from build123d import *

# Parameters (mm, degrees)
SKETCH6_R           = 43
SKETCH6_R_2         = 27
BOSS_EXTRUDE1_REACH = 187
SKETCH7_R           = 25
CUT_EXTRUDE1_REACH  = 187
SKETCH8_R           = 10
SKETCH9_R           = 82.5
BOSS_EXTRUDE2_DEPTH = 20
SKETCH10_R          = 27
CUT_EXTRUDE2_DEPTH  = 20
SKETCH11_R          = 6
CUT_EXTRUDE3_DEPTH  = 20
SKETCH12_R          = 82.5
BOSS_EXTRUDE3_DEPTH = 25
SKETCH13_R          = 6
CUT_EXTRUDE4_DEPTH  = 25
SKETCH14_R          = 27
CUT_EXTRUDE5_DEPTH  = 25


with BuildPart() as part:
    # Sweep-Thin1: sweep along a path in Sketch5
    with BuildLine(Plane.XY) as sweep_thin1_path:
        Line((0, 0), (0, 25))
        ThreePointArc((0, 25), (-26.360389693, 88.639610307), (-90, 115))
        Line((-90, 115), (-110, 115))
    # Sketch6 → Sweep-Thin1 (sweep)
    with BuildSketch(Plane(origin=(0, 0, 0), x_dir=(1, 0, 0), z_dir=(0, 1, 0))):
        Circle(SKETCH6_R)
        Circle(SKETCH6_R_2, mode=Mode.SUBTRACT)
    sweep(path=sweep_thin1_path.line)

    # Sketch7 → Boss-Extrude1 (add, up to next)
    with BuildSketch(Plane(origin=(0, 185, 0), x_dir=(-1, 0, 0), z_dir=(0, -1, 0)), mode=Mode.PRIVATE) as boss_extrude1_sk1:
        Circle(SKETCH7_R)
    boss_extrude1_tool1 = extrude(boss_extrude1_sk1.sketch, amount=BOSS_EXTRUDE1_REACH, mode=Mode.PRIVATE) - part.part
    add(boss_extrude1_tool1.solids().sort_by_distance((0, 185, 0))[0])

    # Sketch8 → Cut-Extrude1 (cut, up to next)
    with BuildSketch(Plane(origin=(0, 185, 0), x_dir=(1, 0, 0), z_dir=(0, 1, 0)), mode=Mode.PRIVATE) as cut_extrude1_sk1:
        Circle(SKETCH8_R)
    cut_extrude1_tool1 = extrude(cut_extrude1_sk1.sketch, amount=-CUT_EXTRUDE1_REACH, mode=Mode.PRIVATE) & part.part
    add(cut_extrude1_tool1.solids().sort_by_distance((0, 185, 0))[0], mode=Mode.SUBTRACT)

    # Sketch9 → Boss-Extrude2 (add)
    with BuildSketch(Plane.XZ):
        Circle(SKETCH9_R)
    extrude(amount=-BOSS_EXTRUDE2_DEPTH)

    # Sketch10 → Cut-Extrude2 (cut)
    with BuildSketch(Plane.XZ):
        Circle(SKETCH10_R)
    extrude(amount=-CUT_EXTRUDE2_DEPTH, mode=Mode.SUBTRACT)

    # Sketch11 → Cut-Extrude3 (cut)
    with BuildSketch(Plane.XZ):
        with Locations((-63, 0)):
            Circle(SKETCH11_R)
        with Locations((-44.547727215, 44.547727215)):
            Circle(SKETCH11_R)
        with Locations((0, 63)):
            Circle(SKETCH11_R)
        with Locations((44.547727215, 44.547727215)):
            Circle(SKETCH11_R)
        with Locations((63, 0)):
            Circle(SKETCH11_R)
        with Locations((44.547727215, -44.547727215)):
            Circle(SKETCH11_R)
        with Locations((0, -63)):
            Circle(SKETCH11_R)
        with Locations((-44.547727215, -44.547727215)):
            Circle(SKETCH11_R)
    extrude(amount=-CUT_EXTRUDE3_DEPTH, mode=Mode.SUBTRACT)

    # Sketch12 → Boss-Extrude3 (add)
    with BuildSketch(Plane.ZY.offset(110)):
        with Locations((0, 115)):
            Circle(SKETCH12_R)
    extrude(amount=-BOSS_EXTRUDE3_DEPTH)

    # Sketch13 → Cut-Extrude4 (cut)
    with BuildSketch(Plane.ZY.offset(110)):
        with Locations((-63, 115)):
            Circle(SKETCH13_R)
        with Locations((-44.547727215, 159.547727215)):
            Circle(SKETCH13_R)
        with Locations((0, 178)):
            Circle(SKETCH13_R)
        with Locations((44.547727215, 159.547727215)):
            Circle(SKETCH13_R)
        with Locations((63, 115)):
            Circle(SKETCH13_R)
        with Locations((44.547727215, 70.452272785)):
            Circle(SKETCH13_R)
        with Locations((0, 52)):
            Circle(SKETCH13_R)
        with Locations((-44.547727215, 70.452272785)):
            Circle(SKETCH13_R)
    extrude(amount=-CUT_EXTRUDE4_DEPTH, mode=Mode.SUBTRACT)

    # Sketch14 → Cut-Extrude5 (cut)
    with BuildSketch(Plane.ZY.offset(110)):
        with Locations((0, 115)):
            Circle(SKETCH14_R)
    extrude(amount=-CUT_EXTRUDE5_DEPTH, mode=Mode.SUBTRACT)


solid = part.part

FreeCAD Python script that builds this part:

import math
import FreeCAD as App
import Part
import Sketcher

doc = App.newDocument("Part")
body = doc.addObject("PartDesign::Body", "Body")

# Sketch on XZ plane
sketch1 = doc.addObject("Sketcher::SketchObject", "Sketch")
body.addObject(sketch1)
sketch1.AttachmentSupport = (doc.XZ_Plane, [""])
sketch1.MapMode = "FlatFace"
sketch1.addGeometry(Part.Circle(App.Vector(0, 0, 0), App.Vector(0, 0, 1), 43), False)
sketch1.addGeometry(Part.Circle(App.Vector(0, 0, 0), App.Vector(0, 0, 1), 27), False)
sketch1.addConstraint(Sketcher.Constraint("Coincident", 0, 3, -1, 1))
sketch1.addConstraint(Sketcher.Constraint("Coincident", 1, 3, -1, 1))
sketch1.addConstraint(Sketcher.Constraint("Diameter", 0, 86.0))
sketch1.addConstraint(Sketcher.Constraint("Diameter", 1, 54.0))

# Sketch on XY plane
sketch2 = doc.addObject("Sketcher::SketchObject", "Sketch001")
body.addObject(sketch2)
sketch2.AttachmentSupport = (doc.XY_Plane, [""])
sketch2.MapMode = "FlatFace"
sketch2.addGeometry(Part.LineSegment(App.Vector(0, 0, 0), App.Vector(0, 25, 0)), False)
sketch2.addGeometry(Part.ArcOfCircle(Part.Circle(App.Vector(-90, 25, 0), App.Vector(0, 0, 1), 90), math.radians(0), math.radians(90)), False)
sketch2.addGeometry(Part.LineSegment(App.Vector(-90, 115, 0), App.Vector(-110, 115, 0)), False)
sketch2.addConstraint(Sketcher.Constraint("Tangent", 0, 2, 1, 1))
sketch2.addConstraint(Sketcher.Constraint("Tangent", 1, 2, 2, 1))
sketch2.addConstraint(Sketcher.Constraint("Vertical", 0))
sketch2.addConstraint(Sketcher.Constraint("Horizontal", 2))
sketch2.addConstraint(Sketcher.Constraint("Coincident", 0, 1, -1, 1))
sketch2.addConstraint(Sketcher.Constraint("Radius", 1, 90.0))
sketch2.addConstraint(Sketcher.Constraint("DistanceX", 2, 2, 2, 1, 20.0))
sketch2.addConstraint(Sketcher.Constraint("DistanceY", 0, 1, 0, 2, 25.0))
doc.recompute()

additivepipe = doc.addObject("PartDesign::AdditivePipe", "AdditivePipe")
body.addObject(additivepipe)
additivepipe.Profile = sketch1
additivepipe.Spine = (sketch2, ["Edge1", "Edge2", "Edge3"])

# Sketch on XZ plane
sketch3 = doc.addObject("Sketcher::SketchObject", "Sketch002")
body.addObject(sketch3)
sketch3.AttachmentSupport = (doc.XZ_Plane, [""])
sketch3.MapMode = "FlatFace"
sketch3.AttachmentOffset = App.Placement(App.Vector(0, 0, -185), App.Rotation())
sketch3.addGeometry(Part.Circle(App.Vector(0, 0, 0), App.Vector(0, 0, 1), 25), False)
sketch3.addConstraint(Sketcher.Constraint("Coincident", 0, 3, -1, 1))
sketch3.addConstraint(Sketcher.Constraint("Diameter", 0, 50.0))
pad1 = doc.addObject("PartDesign::Pad", "Pad")
body.addObject(pad1)
pad1.Profile = sketch3
pad1.Type = "UpToFirst"

# Sketch on XZ plane
sketch4 = doc.addObject("Sketcher::SketchObject", "Sketch003")
body.addObject(sketch4)
sketch4.AttachmentSupport = (doc.XZ_Plane, [""])
sketch4.MapMode = "FlatFace"
sketch4.AttachmentOffset = App.Placement(App.Vector(0, 0, -185), App.Rotation())
sketch4.addGeometry(Part.Circle(App.Vector(0, 0, 0), App.Vector(0, 0, 1), 10), False)
sketch4.addConstraint(Sketcher.Constraint("Coincident", 0, 3, -1, 1))
sketch4.addConstraint(Sketcher.Constraint("Diameter", 0, 20.0))
pocket1 = doc.addObject("PartDesign::Pocket", "Pocket")
body.addObject(pocket1)
pocket1.Profile = sketch4
pocket1.Length = 99.262861
pocket1.Reversed = True

# Sketch on XZ plane
sketch5 = doc.addObject("Sketcher::SketchObject", "Sketch004")
body.addObject(sketch5)
sketch5.AttachmentSupport = (doc.XZ_Plane, [""])
sketch5.MapMode = "FlatFace"
sketch5.addGeometry(Part.Circle(App.Vector(0, 0, 0), App.Vector(0, 0, 1), 82), False)
sketch5.addConstraint(Sketcher.Constraint("Coincident", 0, 3, -1, 1))
sketch5.addConstraint(Sketcher.Constraint("Diameter", 0, 165.0))
pad2 = doc.addObject("PartDesign::Pad", "Pad001")
body.addObject(pad2)
pad2.Profile = sketch5
pad2.Length = 20
pad2.Reversed = True

# Sketch on XZ plane
sketch6 = doc.addObject("Sketcher::SketchObject", "Sketch005")
body.addObject(sketch6)
sketch6.AttachmentSupport = (doc.XZ_Plane, [""])
sketch6.MapMode = "FlatFace"
sketch6.addGeometry(Part.Circle(App.Vector(0, 0, 0), App.Vector(0, 0, 1), 27), False)
sketch6.addConstraint(Sketcher.Constraint("Coincident", 0, 3, -1, 1))
sketch6.addConstraint(Sketcher.Constraint("Diameter", 0, 54.0))
pocket2 = doc.addObject("PartDesign::Pocket", "Pocket001")
body.addObject(pocket2)
pocket2.Profile = sketch6
pocket2.Length = 20

# Sketch on XZ plane
sketch7 = doc.addObject("Sketcher::SketchObject", "Sketch006")
body.addObject(sketch7)
sketch7.AttachmentSupport = (doc.XZ_Plane, [""])
sketch7.MapMode = "FlatFace"
sketch7.addGeometry(Part.Circle(App.Vector(-63, 0, 0), App.Vector(0, 0, 1), 6), False)
sketch7.addGeometry(Part.Circle(App.Vector(-45, 45, 0), App.Vector(0, 0, 1), 6), False)
sketch7.addGeometry(Part.Circle(App.Vector(0, 63, 0), App.Vector(0, 0, 1), 6), False)
sketch7.addGeometry(Part.Circle(App.Vector(45, 45, 0), App.Vector(0, 0, 1), 6), False)
sketch7.addGeometry(Part.Circle(App.Vector(63, 0, 0), App.Vector(0, 0, 1), 6), False)
sketch7.addGeometry(Part.Circle(App.Vector(45, -45, 0), App.Vector(0, 0, 1), 6), False)
sketch7.addGeometry(Part.Circle(App.Vector(0, -63, 0), App.Vector(0, 0, 1), 6), False)
sketch7.addGeometry(Part.Circle(App.Vector(-45, -45, 0), App.Vector(0, 0, 1), 6), False)
sketch7.addConstraint(Sketcher.Constraint("Equal", 0, 1))
sketch7.addConstraint(Sketcher.Constraint("Equal", 1, 2))
sketch7.addConstraint(Sketcher.Constraint("Equal", 2, 3))
sketch7.addConstraint(Sketcher.Constraint("Equal", 3, 4))
sketch7.addConstraint(Sketcher.Constraint("Equal", 4, 5))
sketch7.addConstraint(Sketcher.Constraint("Equal", 5, 6))
sketch7.addConstraint(Sketcher.Constraint("Equal", 6, 7))
sketch7.addConstraint(Sketcher.Constraint("Symmetric", 0, 3, 4, 3, -1, 1))
sketch7.addConstraint(Sketcher.Constraint("Symmetric", 1, 3, 5, 3, -1, 1))
sketch7.addConstraint(Sketcher.Constraint("Symmetric", 2, 3, 6, 3, -1, 1))
sketch7.addConstraint(Sketcher.Constraint("Symmetric", 3, 3, 7, 3, -1, 1))
sketch7.addConstraint(Sketcher.Constraint("Symmetric", 1, 3, 3, 3, -2))
sketch7.addConstraint(Sketcher.Constraint("PointOnObject", 0, 3, -1))
sketch7.addConstraint(Sketcher.Constraint("PointOnObject", 2, 3, -2))
sketch7.addConstraint(Sketcher.Constraint("Diameter", 0, 12.0))
sketch7.addConstraint(Sketcher.Constraint("DistanceX", 0, 3, -1, 1, 63.0))
sketch7.addConstraint(Sketcher.Constraint("DistanceY", -1, 1, 2, 3, 63.0))
sketch7.addConstraint(Sketcher.Constraint("DistanceX", 1, 3, -1, 1, 44.547727))
sketch7.addConstraint(Sketcher.Constraint("DistanceY", -1, 1, 1, 3, 44.547727))
pocket3 = doc.addObject("PartDesign::Pocket", "Pocket002")
body.addObject(pocket3)
pocket3.Profile = sketch7
pocket3.Length = 20

# Sketch on YZ plane
sketch8 = doc.addObject("Sketcher::SketchObject", "Sketch007")
body.addObject(sketch8)
sketch8.AttachmentSupport = (doc.YZ_Plane, [""])
sketch8.MapMode = "FlatFace"
sketch8.AttachmentOffset = App.Placement(App.Vector(0, 0, -110), App.Rotation())
sketch8.addGeometry(Part.Circle(App.Vector(115, 0, 0), App.Vector(0, 0, 1), 82), False)
sketch8.addConstraint(Sketcher.Constraint("PointOnObject", 0, 3, -1))
sketch8.addConstraint(Sketcher.Constraint("Diameter", 0, 165.0))
sketch8.addConstraint(Sketcher.Constraint("DistanceX", -1, 1, 0, 3, 115.0))
pad3 = doc.addObject("PartDesign::Pad", "Pad002")
body.addObject(pad3)
pad3.Profile = sketch8
pad3.Length = 25

# Sketch on YZ plane
sketch9 = doc.addObject("Sketcher::SketchObject", "Sketch008")
body.addObject(sketch9)
sketch9.AttachmentSupport = (doc.YZ_Plane, [""])
sketch9.MapMode = "FlatFace"
sketch9.AttachmentOffset = App.Placement(App.Vector(0, 0, -110), App.Rotation())
sketch9.addGeometry(Part.Circle(App.Vector(115, -63, 0), App.Vector(0, 0, 1), 6), False)
sketch9.addGeometry(Part.Circle(App.Vector(160, -45, 0), App.Vector(0, 0, 1), 6), False)
sketch9.addGeometry(Part.Circle(App.Vector(178, 0, 0), App.Vector(0, 0, 1), 6), False)
sketch9.addGeometry(Part.Circle(App.Vector(160, 45, 0), App.Vector(0, 0, 1), 6), False)
sketch9.addGeometry(Part.Circle(App.Vector(115, 63, 0), App.Vector(0, 0, 1), 6), False)
sketch9.addGeometry(Part.Circle(App.Vector(70, 45, 0), App.Vector(0, 0, 1), 6), False)
sketch9.addGeometry(Part.Circle(App.Vector(52, 0, 0), App.Vector(0, 0, 1), 6), False)
sketch9.addGeometry(Part.Circle(App.Vector(70, -45, 0), App.Vector(0, 0, 1), 6), False)
sketch9.addConstraint(Sketcher.Constraint("Equal", 0, 1))
sketch9.addConstraint(Sketcher.Constraint("Equal", 1, 2))
sketch9.addConstraint(Sketcher.Constraint("Equal", 2, 3))
sketch9.addConstraint(Sketcher.Constraint("Equal", 3, 4))
sketch9.addConstraint(Sketcher.Constraint("Equal", 4, 5))
sketch9.addConstraint(Sketcher.Constraint("Equal", 5, 6))
sketch9.addConstraint(Sketcher.Constraint("Equal", 6, 7))
sketch9.addConstraint(Sketcher.Constraint("Symmetric", 1, 3, 3, 3, -1))
sketch9.addConstraint(Sketcher.Constraint("Symmetric", 0, 3, 4, 3, -1))
sketch9.addConstraint(Sketcher.Constraint("Symmetric", 5, 3, 7, 3, -1))
sketch9.addConstraint(Sketcher.Constraint("PointOnObject", 2, 3, -1))
sketch9.addConstraint(Sketcher.Constraint("PointOnObject", 6, 3, -1))
sketch9.addConstraint(Sketcher.Constraint("Horizontal", 3, 3, 5, 3))
sketch9.addConstraint(Sketcher.Constraint("Diameter", 0, 12.0))
sketch9.addConstraint(Sketcher.Constraint("DistanceX", -1, 1, 0, 3, 115.0))
sketch9.addConstraint(Sketcher.Constraint("DistanceY", 0, 3, -1, 1, 63.0))
sketch9.addConstraint(Sketcher.Constraint("DistanceX", -1, 1, 2, 3, 178.0))
sketch9.addConstraint(Sketcher.Constraint("DistanceX", -1, 1, 6, 3, 52.0))
sketch9.addConstraint(Sketcher.Constraint("DistanceX", -1, 1, 1, 3, 159.547727))
sketch9.addConstraint(Sketcher.Constraint("DistanceY", 1, 3, -1, 1, 44.547727))
sketch9.addConstraint(Sketcher.Constraint("DistanceX", -1, 1, 5, 3, 70.452273))
pocket4 = doc.addObject("PartDesign::Pocket", "Pocket003")
body.addObject(pocket4)
pocket4.Profile = sketch9
pocket4.Length = 25
pocket4.Reversed = True

# Sketch on YZ plane
sketch10 = doc.addObject("Sketcher::SketchObject", "Sketch009")
body.addObject(sketch10)
sketch10.AttachmentSupport = (doc.YZ_Plane, [""])
sketch10.MapMode = "FlatFace"
sketch10.AttachmentOffset = App.Placement(App.Vector(0, 0, -110), App.Rotation())
sketch10.addGeometry(Part.Circle(App.Vector(115, 0, 0), App.Vector(0, 0, 1), 27), False)
sketch10.addConstraint(Sketcher.Constraint("PointOnObject", 0, 3, -1))
sketch10.addConstraint(Sketcher.Constraint("Diameter", 0, 54.0))
sketch10.addConstraint(Sketcher.Constraint("DistanceX", -1, 1, 0, 3, 115.0))
pocket5 = doc.addObject("PartDesign::Pocket", "Pocket004")
body.addObject(pocket5)
pocket5.Profile = sketch10
pocket5.Length = 25
pocket5.Reversed = True

doc.recompute()
